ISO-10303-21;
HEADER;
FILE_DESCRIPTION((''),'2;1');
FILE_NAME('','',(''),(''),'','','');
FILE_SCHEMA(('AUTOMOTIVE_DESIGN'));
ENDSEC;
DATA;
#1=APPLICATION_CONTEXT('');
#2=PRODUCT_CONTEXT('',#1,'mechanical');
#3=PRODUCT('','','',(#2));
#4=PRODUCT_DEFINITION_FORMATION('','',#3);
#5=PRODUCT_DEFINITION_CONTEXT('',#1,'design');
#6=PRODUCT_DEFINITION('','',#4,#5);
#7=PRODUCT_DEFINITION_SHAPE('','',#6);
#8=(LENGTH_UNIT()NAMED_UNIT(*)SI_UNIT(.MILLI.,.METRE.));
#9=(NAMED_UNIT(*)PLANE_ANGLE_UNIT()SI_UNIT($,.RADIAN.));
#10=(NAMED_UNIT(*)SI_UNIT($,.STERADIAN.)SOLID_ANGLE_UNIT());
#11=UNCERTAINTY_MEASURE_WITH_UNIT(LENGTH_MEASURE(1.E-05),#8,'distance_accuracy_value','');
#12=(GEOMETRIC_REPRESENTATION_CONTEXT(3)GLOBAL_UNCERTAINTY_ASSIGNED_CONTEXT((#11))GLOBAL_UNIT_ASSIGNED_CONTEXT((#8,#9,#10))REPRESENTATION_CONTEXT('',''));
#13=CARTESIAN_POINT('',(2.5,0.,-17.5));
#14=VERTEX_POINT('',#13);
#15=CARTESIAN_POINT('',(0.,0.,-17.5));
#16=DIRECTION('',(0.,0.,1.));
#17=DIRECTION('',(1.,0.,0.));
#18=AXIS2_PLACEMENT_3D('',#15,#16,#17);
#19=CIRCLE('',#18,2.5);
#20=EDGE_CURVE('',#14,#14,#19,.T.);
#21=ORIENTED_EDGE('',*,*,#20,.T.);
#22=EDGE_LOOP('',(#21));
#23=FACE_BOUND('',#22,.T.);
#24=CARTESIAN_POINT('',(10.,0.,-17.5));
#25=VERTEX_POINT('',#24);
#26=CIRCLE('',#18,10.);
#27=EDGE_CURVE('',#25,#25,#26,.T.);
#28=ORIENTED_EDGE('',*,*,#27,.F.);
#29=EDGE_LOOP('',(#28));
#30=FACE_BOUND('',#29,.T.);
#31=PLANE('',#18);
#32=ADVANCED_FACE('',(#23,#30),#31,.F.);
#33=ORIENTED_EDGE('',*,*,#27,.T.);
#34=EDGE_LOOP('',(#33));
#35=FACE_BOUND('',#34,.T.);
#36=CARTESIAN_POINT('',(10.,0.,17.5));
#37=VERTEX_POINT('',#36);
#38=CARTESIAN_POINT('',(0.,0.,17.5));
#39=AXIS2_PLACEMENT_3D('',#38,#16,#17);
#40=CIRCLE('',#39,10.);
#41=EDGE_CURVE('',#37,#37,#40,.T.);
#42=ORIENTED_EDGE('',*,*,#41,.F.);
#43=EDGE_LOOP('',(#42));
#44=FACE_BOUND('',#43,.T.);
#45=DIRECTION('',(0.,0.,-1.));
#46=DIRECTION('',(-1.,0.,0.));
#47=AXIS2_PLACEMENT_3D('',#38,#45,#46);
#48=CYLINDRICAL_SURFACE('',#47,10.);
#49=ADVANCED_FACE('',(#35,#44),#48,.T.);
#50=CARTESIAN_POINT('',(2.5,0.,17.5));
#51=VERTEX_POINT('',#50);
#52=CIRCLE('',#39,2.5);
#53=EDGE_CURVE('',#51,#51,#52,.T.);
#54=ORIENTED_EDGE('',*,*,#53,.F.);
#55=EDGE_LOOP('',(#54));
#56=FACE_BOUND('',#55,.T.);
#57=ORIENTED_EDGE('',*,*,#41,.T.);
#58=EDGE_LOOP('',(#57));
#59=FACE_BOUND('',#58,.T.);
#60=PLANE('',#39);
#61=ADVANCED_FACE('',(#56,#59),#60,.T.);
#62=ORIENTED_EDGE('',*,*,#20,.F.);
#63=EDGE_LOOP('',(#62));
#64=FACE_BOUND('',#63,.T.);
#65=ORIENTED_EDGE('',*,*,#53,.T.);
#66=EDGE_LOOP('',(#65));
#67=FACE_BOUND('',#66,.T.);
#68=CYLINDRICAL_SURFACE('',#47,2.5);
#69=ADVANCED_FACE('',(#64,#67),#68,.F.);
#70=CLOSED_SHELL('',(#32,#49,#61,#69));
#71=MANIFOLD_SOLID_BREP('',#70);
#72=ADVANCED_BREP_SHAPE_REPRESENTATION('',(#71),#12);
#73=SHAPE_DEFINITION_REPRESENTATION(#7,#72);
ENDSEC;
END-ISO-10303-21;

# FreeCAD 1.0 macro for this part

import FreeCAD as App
import Part
import Sketcher

doc = App.newDocument("Part")
body = doc.addObject("PartDesign::Body", "Body")

# Sketch on XY plane
sketch1 = doc.addObject("Sketcher::SketchObject", "Sketch")
body.addObject(sketch1)
sketch1.AttachmentSupport = (doc.XY_Plane, [""])
sketch1.MapMode = "FlatFace"
sketch1.addGeometry(Part.Circle(App.Vector(0, 0, 0), App.Vector(0, 0, 1), 10), False)
sketch1.addGeometry(Part.Circle(App.Vector(0, 0, 0), App.Vector(0, 0, 1), 2.5), False)
sketch1.addConstraint(Sketcher.Constraint("Coincident", 0, 3, -1, 1))
sketch1.addConstraint(Sketcher.Constraint("Coincident", 1, 3, -1, 1))
sketch1.addConstraint(Sketcher.Constraint("Diameter", 0, 20.0))
sketch1.addConstraint(Sketcher.Constraint("Diameter", 1, 5.0))
pad1 = doc.addObject("PartDesign::Pad", "Pad")
body.addObject(pad1)
pad1.Profile = sketch1
pad1.Length = 35
pad1.Midplane = True

doc.recompute()
